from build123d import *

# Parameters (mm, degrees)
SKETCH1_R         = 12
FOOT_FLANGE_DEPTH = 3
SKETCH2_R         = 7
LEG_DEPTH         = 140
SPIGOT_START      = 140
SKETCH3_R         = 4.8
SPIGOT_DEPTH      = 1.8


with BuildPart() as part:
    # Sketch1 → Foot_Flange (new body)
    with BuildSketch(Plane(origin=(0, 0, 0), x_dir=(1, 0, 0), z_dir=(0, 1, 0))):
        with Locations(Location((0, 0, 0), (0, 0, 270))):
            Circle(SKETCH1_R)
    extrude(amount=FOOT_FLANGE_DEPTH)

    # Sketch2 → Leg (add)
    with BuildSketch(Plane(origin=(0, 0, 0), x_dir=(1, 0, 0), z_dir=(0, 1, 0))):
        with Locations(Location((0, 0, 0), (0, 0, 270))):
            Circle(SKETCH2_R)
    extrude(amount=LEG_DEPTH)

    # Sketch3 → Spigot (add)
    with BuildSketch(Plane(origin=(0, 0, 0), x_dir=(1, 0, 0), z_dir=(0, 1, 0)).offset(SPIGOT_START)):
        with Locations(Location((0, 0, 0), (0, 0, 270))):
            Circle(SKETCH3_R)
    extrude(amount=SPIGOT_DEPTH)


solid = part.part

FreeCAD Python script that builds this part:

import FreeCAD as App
import Part
import Sketcher
from FreeCAD import Vector
Q = App.Units.Quantity

doc = App.newDocument("Part")
params = doc.addObject("Spreadsheet::Sheet", "Params")
for row, (alias, value) in enumerate([
    ("sketch1_diameter", "24 mm"),
    ("pad1_length", "3 mm"),
    ("sketch2_diameter", "14 mm"),
    ("pad2_length", "140 mm"),
    ("sketch3_diameter", "9.6 mm"),
    ("pad3_length", "1.8 mm"),
], start=1):
    params.set(f"A{row}", alias)
    params.set(f"B{row}", "=" + value)
    params.setAlias(f"B{row}", alias)

body = doc.addObject("PartDesign::Body", "Body")

sketch1 = doc.addObject("Sketcher::SketchObject", "Sketch")
body.addObject(sketch1)
sketch1.AttachmentSupport = (doc.XZ_Plane, [""])
sketch1.MapMode = "FlatFace"
sketch1.addGeometry(Part.Circle(Vector(0, 0, 0), Vector(0, 0, 1), 12), False)
sketch1.addConstraint(Sketcher.Constraint("Coincident", 0, 3, -1, 1))
sketch1.addConstraint(Sketcher.Constraint("Diameter", 0, Q("24 mm")))
sketch1.setExpression("Constraints[1]", "Params.sketch1_diameter")
pad1 = doc.addObject("PartDesign::Pad", "Pad")
body.addObject(pad1)
pad1.Profile = sketch1
pad1.setExpression("Length", "Params.pad1_length")
pad1.Reversed = True

sketch2 = doc.addObject("Sketcher::SketchObject", "Sketch001")
body.addObject(sketch2)
sketch2.AttachmentSupport = (doc.XZ_Plane, [""])
sketch2.MapMode = "FlatFace"
sketch2.addGeometry(Part.Circle(Vector(0, 0, 0), Vector(0, 0, 1), 7), False)
sketch2.addConstraint(Sketcher.Constraint("Coincident", 0, 3, -1, 1))
sketch2.addConstraint(Sketcher.Constraint("Diameter", 0, Q("14 mm")))
sketch2.setExpression("Constraints[1]", "Params.sketch2_diameter")
pad2 = doc.addObject("PartDesign::Pad", "Pad001")
body.addObject(pad2)
pad2.Profile = sketch2
pad2.setExpression("Length", "Params.pad2_length")
pad2.Reversed = True

sketch3 = doc.addObject("Sketcher::SketchObject", "Sketch002")
body.addObject(sketch3)
sketch3.AttachmentSupport = (doc.XZ_Plane, [""])
sketch3.MapMode = "FlatFace"
sketch3.AttachmentOffset = App.Placement(Vector(0, 0, -140), App.Rotation())
sketch3.addGeometry(Part.Circle(Vector(0, 0, 0), Vector(0, 0, 1), 4.8), False)
sketch3.addConstraint(Sketcher.Constraint("Coincident", 0, 3, -1, 1))
sketch3.addConstraint(Sketcher.Constraint("Diameter", 0, Q("9.6 mm")))
sketch3.setExpression("Constraints[1]", "Params.sketch3_diameter")
pad3 = doc.addObject("PartDesign::Pad", "Pad002")
body.addObject(pad3)
pad3.Profile = sketch3
pad3.setExpression("Length", "Params.pad3_length")
pad3.Reversed = True

doc.recompute()
